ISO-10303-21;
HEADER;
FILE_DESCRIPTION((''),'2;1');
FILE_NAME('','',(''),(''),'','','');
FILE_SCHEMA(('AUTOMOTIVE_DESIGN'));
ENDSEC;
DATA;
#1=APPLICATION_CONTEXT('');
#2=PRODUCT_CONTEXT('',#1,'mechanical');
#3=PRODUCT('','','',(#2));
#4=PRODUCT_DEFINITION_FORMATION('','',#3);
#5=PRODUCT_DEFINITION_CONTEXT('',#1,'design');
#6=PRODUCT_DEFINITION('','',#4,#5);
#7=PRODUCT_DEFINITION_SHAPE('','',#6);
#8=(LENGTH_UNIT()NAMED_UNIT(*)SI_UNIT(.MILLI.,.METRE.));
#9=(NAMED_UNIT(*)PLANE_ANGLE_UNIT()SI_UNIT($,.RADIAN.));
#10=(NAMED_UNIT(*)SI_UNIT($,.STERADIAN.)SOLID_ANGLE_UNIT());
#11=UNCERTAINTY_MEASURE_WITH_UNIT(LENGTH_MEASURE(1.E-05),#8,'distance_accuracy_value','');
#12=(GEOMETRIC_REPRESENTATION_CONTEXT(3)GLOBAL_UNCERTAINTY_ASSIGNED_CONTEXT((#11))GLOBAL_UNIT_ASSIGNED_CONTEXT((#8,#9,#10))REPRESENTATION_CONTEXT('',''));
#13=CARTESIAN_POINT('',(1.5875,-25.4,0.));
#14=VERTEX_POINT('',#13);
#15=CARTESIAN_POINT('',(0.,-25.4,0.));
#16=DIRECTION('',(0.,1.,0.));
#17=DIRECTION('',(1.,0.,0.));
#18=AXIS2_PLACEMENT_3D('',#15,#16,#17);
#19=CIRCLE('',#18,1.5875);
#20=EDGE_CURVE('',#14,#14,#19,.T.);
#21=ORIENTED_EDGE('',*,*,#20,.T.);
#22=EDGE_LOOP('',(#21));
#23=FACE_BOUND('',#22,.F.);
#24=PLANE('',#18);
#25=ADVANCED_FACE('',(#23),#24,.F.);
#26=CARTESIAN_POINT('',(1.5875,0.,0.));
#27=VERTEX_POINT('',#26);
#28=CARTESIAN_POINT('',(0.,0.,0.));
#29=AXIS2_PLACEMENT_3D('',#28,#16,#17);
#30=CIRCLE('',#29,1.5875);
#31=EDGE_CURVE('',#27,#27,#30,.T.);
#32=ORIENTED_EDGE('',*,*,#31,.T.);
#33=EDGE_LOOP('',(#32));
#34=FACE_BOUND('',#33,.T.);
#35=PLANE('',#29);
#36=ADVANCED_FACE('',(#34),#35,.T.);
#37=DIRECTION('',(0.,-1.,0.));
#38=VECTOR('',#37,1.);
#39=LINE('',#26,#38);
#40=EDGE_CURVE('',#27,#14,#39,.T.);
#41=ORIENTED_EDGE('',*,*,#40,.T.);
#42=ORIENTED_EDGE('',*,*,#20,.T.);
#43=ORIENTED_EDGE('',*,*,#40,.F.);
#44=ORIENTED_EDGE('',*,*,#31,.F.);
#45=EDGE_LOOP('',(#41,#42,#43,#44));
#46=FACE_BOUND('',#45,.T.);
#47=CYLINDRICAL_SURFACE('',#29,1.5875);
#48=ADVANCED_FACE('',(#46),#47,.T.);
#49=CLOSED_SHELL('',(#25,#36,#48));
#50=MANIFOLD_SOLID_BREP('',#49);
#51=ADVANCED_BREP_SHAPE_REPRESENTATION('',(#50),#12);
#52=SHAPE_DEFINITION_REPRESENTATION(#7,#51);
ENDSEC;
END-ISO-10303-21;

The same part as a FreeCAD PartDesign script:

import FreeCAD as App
import Part
import Sketcher
Q = App.Units.Quantity

doc = App.newDocument("Part")
body = doc.addObject("PartDesign::Body", "Body")

# Sketch on XZ plane
sketch1 = body.newObject("Sketcher::SketchObject", "Sketch")
sketch1.AttachmentSupport = (doc.getObject("XZ_Plane"), [""])
sketch1.MapMode = "FlatFace"
sketch1.addGeometry(Part.Circle(App.Vector(0, 0, 0), App.Vector(0, 0, 1), 1.6), False)
sketch1.addConstraint([
    Sketcher.Constraint("Coincident", 0, 3, -1, 1),
    Sketcher.Constraint("Diameter", 0, Q("0.125 in")),
])
pad1 = body.newObject("PartDesign::Pad", "Pad")
pad1.Profile = sketch1
pad1.Length = Q("1 in")

doc.recompute()
